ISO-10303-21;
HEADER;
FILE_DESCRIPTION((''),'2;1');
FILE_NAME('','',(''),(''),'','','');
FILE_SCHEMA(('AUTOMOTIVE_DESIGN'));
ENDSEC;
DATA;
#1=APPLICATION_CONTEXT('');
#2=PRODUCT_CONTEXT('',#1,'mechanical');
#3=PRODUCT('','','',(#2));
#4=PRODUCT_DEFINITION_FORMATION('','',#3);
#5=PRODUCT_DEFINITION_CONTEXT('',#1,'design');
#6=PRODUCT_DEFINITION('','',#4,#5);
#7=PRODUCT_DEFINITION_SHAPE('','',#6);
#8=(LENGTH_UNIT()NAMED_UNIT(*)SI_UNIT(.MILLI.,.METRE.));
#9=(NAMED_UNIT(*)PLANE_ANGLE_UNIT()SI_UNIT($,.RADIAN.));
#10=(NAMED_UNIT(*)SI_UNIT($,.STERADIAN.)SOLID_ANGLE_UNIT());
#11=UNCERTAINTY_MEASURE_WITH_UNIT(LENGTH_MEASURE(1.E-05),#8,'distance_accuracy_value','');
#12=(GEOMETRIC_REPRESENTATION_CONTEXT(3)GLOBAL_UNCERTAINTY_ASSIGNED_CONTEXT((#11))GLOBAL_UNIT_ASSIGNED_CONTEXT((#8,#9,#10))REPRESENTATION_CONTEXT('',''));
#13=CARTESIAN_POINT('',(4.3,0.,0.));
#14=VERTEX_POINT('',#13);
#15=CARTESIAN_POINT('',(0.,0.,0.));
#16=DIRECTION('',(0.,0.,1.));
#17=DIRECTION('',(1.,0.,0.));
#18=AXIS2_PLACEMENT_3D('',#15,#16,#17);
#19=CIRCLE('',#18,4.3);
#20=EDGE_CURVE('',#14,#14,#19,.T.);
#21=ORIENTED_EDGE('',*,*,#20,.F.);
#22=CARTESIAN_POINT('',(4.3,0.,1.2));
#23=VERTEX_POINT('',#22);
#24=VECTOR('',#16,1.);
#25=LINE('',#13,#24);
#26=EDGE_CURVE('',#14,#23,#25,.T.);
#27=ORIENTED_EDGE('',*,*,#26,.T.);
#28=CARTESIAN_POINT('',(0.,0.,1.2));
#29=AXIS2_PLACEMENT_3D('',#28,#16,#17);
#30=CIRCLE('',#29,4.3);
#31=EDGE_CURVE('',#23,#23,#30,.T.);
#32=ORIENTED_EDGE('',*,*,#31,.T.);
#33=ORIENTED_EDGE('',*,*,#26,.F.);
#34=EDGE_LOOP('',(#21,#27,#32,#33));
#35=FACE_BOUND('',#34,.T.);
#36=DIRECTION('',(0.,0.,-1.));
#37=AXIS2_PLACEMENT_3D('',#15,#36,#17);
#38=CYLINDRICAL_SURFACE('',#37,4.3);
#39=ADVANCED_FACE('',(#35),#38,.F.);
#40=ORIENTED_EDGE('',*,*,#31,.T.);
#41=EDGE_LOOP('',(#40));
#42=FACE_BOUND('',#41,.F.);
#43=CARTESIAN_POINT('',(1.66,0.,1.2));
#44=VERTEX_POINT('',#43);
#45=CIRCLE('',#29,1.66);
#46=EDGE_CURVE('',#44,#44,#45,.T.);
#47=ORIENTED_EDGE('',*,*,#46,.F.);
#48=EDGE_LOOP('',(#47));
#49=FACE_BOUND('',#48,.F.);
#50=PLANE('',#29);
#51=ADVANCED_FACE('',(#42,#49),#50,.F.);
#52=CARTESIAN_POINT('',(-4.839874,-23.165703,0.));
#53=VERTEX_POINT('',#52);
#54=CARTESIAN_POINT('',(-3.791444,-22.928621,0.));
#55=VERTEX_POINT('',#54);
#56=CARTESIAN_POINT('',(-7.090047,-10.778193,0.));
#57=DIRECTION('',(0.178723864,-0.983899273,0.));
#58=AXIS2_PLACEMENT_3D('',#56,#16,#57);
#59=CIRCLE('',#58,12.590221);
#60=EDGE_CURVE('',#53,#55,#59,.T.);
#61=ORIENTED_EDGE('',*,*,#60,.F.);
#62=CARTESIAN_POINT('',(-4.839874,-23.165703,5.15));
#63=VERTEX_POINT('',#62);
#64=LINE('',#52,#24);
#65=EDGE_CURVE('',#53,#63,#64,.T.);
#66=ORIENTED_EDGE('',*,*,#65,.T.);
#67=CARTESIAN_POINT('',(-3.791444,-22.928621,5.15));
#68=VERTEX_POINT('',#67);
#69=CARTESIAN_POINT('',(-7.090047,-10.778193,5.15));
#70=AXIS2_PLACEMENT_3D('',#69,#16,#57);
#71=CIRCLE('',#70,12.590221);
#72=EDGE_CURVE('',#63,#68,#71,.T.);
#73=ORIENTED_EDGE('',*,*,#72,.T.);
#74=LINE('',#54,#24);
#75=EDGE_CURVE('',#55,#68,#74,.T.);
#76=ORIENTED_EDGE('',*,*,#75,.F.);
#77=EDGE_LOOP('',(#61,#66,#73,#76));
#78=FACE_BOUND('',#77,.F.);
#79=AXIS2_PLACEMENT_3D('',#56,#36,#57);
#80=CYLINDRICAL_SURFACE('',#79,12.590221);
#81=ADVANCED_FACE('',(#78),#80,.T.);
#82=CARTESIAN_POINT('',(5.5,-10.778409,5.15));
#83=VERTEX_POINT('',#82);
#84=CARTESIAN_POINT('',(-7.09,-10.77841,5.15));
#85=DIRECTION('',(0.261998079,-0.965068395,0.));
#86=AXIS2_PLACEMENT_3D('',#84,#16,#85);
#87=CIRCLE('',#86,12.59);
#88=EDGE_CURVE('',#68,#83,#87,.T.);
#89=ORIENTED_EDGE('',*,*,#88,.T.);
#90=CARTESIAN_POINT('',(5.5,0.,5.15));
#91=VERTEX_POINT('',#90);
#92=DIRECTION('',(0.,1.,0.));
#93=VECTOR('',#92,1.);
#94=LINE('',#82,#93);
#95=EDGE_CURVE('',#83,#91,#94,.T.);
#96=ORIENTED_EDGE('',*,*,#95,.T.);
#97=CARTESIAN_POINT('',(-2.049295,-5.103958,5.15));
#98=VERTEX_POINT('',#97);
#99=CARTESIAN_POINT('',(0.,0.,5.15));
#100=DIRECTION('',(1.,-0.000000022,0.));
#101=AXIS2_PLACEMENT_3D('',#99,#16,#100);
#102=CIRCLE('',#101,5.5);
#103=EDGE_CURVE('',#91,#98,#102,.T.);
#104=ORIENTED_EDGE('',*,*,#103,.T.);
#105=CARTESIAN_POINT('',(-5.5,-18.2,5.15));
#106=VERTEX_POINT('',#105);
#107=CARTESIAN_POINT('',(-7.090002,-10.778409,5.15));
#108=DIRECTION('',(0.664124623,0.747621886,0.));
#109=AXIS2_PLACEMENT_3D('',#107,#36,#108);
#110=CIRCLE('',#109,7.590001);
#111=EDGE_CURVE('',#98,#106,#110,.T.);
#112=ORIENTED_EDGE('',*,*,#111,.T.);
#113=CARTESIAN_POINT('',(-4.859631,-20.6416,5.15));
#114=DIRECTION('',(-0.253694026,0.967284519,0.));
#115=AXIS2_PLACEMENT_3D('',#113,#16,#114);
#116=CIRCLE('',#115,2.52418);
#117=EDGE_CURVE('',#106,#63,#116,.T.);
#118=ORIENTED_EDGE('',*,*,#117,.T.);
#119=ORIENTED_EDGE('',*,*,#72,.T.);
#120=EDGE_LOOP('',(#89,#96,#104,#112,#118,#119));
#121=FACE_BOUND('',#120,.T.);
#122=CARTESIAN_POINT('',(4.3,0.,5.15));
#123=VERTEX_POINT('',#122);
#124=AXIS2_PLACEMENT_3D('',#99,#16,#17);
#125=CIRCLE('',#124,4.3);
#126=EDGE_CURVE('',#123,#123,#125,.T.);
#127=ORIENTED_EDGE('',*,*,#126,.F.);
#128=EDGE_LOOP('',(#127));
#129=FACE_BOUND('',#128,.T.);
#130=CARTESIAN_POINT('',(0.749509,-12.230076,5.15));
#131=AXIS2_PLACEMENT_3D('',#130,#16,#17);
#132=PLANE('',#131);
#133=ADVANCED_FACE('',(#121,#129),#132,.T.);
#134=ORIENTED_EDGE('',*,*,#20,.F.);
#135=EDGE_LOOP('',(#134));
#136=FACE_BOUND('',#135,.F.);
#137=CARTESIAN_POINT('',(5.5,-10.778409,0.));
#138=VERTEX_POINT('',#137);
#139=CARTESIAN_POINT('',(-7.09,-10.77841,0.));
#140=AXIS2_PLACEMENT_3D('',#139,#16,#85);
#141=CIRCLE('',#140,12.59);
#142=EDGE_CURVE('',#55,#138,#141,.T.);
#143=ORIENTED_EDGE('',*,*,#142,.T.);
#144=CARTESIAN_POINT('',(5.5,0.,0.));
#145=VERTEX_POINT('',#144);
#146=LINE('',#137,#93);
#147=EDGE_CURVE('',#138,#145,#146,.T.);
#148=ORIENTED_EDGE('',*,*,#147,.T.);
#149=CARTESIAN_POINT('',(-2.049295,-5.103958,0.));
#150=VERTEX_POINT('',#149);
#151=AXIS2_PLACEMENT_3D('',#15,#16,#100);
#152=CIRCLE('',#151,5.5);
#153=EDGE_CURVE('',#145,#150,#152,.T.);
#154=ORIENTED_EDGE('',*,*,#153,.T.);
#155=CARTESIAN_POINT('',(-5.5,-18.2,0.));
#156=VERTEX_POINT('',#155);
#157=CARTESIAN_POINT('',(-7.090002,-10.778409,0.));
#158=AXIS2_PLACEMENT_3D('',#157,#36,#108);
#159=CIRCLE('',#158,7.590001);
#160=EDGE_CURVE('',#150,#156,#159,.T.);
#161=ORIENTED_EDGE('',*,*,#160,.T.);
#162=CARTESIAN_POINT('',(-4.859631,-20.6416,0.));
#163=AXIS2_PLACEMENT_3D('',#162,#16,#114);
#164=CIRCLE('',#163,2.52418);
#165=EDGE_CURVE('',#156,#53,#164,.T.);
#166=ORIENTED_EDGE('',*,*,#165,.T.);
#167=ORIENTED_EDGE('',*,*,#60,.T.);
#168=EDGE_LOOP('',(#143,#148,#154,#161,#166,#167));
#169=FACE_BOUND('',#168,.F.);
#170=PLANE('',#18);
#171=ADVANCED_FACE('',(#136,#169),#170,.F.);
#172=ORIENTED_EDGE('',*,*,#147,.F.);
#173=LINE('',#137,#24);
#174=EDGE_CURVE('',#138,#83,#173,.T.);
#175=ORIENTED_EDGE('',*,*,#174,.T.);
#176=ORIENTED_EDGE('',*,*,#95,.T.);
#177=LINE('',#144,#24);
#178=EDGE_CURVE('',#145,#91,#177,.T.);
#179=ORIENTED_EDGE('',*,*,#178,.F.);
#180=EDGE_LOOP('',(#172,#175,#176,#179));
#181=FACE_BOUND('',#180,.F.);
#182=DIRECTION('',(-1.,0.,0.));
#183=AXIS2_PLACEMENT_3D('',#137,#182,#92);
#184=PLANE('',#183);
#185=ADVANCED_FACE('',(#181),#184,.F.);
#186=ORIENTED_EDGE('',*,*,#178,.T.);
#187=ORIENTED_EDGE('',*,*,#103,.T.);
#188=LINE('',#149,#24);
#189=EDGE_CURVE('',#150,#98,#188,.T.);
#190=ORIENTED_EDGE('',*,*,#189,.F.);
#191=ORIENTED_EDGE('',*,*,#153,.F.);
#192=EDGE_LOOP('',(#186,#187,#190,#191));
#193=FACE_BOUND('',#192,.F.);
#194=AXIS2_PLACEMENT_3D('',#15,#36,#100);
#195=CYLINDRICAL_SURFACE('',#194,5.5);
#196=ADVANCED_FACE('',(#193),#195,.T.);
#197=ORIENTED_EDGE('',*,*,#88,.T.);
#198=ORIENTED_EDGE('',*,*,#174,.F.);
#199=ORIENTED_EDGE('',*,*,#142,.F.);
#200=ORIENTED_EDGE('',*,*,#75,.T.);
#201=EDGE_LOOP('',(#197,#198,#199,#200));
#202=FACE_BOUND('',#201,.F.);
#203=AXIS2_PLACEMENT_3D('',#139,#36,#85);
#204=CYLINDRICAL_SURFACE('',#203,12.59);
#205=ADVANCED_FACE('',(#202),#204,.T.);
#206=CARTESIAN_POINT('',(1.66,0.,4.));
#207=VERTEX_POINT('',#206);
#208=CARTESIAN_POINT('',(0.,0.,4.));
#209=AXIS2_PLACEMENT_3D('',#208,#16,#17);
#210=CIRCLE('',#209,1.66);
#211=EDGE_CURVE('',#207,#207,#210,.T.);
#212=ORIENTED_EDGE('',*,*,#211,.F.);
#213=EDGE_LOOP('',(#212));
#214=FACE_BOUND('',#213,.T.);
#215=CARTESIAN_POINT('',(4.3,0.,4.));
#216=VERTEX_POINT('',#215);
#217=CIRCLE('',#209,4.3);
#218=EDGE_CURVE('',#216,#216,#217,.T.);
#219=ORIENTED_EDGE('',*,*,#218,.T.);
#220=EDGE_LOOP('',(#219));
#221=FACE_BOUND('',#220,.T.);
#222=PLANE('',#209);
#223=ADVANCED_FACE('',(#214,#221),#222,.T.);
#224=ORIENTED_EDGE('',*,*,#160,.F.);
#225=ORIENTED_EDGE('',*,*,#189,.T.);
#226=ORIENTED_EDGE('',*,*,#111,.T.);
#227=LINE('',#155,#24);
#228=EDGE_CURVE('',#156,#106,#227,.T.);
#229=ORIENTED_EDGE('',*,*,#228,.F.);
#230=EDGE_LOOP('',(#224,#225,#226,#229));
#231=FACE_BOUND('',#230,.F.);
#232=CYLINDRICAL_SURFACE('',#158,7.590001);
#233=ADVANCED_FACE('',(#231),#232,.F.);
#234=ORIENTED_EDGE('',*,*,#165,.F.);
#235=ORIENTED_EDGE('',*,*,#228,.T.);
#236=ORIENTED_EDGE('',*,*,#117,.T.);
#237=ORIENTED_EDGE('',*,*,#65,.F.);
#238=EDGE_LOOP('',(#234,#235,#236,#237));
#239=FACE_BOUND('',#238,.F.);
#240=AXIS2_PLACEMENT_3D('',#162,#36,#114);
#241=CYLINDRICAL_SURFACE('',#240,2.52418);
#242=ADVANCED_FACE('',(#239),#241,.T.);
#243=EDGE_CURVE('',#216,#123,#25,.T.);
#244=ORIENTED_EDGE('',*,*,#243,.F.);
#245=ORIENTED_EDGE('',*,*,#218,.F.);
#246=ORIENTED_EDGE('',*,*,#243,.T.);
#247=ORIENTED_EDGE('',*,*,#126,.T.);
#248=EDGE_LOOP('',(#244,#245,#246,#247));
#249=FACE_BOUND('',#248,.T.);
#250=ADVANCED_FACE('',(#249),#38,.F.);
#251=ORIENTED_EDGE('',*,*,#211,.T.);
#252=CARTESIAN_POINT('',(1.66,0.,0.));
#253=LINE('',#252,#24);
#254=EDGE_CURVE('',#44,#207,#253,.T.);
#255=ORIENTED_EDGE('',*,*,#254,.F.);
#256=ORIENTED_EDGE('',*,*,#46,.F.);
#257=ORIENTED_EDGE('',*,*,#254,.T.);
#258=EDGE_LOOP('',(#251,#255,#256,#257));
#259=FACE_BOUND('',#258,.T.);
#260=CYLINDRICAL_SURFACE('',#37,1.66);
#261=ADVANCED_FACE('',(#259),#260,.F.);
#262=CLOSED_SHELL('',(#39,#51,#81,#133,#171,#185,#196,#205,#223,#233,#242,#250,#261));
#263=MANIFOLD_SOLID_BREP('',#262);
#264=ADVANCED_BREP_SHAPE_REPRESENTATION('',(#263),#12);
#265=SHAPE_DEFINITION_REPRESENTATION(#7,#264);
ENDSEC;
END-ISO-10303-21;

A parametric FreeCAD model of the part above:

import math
import FreeCAD as App
import Part
import Sketcher
from FreeCAD import Vector
Q = App.Units.Quantity

doc = App.newDocument("Part")
params = doc.addObject("Spreadsheet::Sheet", "Params")
for row, (alias, value) in enumerate([
    ("sketch1_diameter", "8.6 mm"),
    ("sketch1_radius", "5.5 mm"),
    ("sketch1_radius2", "7.590001 mm"),
    ("sketch1_radius3", "12.59 mm"),
    ("pad1_length", "5.15 mm"),
    ("sketch2_diameter", "8.6 mm"),
    ("sketch2_diameter2", "3.32 mm"),
    ("pad2_length", "4 mm"),
    ("sketch3_diameter", "8.6 mm"),
    ("sketch3_diameter2", "3.32 mm"),
    ("pocket1_length", "1.2 mm"),
], start=1):
    params.set(f"A{row}", alias)
    params.set(f"B{row}", "=" + value)
    params.setAlias(f"B{row}", alias)

body = doc.addObject("PartDesign::Body", "Body")

# Sketch on XY plane
sketch1 = doc.addObject("Sketcher::SketchObject", "Sketch")
body.addObject(sketch1)
sketch1.AttachmentSupport = (doc.XY_Plane, [""])
sketch1.MapMode = "FlatFace"
sketch1.addGeometry(Part.LineSegment(Vector(5.5, -10.8, 0), Vector(5.5, 0, 0)), False)
sketch1.addGeometry(Part.ArcOfCircle(Part.Circle(Vector(0, 0, 0), Vector(0, 0, 1), 5.5), math.radians(0), math.radians(248)), False)
sketch1.addGeometry(Part.ArcOfCircle(Part.Circle(Vector(-7.1, -10.8, 0), Vector(0, 0, 1), 7.6), math.radians(-78), math.radians(48)), False)
sketch1.addGeometry(Part.ArcOfCircle(Part.Circle(Vector(-4.9, -20.6, 0), Vector(0, 0, 1), 2.5), math.radians(105), math.radians(270)), False)
sketch1.addGeometry(Part.ArcOfCircle(Part.Circle(Vector(-7.1, -10.8, 0), Vector(0, 0, 1), 12.6), math.radians(-79.7), math.radians(-74.81)), False)
sketch1.addGeometry(Part.ArcOfCircle(Part.Circle(Vector(-7.1, -10.8, 0), Vector(0, 0, 1), 12.6), math.radians(-75), math.radians(0)), False)
sketch1.addGeometry(Part.Circle(Vector(0, 0, 0), Vector(0, 0, 1), 4.3), False)
sketch1.addConstraint(Sketcher.Constraint("Tangent", 0, 2, 1, 1))
sketch1.addConstraint(Sketcher.Constraint("Coincident", 1, 2, 2, 2))
sketch1.addConstraint(Sketcher.Constraint("Coincident", 2, 1, 3, 1))
sketch1.addConstraint(Sketcher.Constraint("Coincident", 3, 2, 4, 1))
sketch1.addConstraint(Sketcher.Constraint("Tangent", 4, 2, 5, 1))
sketch1.addConstraint(Sketcher.Constraint("Tangent", 5, 2, 0, 1))
sketch1.addConstraint(Sketcher.Constraint("Vertical", 0))
sketch1.addConstraint(Sketcher.Constraint("Coincident", 1, 3, -1, 1))
sketch1.addConstraint(Sketcher.Constraint("Coincident", 6, 3, -1, 1))
sketch1.addConstraint(Sketcher.Constraint("Coincident", 5, 3, 2, 3))
sketch1.addConstraint(Sketcher.Constraint("Diameter", 6, Q("8.6 mm")))
sketch1.addConstraint(Sketcher.Constraint("Radius", 1, Q("5.5 mm")))
sketch1.addConstraint(Sketcher.Constraint("Radius", 2, Q("7.590001 mm")))
sketch1.addConstraint(Sketcher.Constraint("Radius", 5, Q("12.59 mm")))
sketch1.addConstraint(Sketcher.Constraint("DistanceX", 2, 1, -1, 1, Q("5.5 mm")))
sketch1.addConstraint(Sketcher.Constraint("DistanceY", 2, 1, -1, 1, Q("18.2 mm")))
sketch1.addConstraint(Sketcher.Constraint("Radius", 3, Q("2.52418 mm")))
sketch1.addConstraint(Sketcher.Constraint("Radius", 4, Q("12.590221 mm")))
sketch1.addConstraint(Sketcher.Constraint("DistanceY", 3, 3, -1, 1, Q("20.6416 mm")))
sketch1.addConstraint(Sketcher.Constraint("DistanceY", 4, 2, -1, 1, Q("22.928621 mm")))
sketch1.setExpression("Constraints[10]", "Params.sketch1_diameter")
sketch1.setExpression("Constraints[11]", "Params.sketch1_radius")
sketch1.setExpression("Constraints[12]", "Params.sketch1_radius2")
sketch1.setExpression("Constraints[13]", "Params.sketch1_radius3")
pad1 = doc.addObject("PartDesign::Pad", "Pad")
body.addObject(pad1)
pad1.Profile = sketch1
pad1.setExpression("Length", "Params.pad1_length")

# Sketch on XY plane
sketch2 = doc.addObject("Sketcher::SketchObject", "Sketch001")
body.addObject(sketch2)
sketch2.AttachmentSupport = (doc.XY_Plane, [""])
sketch2.MapMode = "FlatFace"
sketch2.addGeometry(Part.Circle(Vector(0, 0, 0), Vector(0, 0, 1), 4.3), False)
sketch2.addGeometry(Part.Circle(Vector(0, 0, 0), Vector(0, 0, 1), 1.7), False)
sketch2.addConstraint(Sketcher.Constraint("Coincident", 0, 3, -1, 1))
sketch2.addConstraint(Sketcher.Constraint("Coincident", 1, 3, -1, 1))
sketch2.addConstraint(Sketcher.Constraint("Diameter", 0, Q("8.6 mm")))
sketch2.addConstraint(Sketcher.Constraint("Diameter", 1, Q("3.32 mm")))
sketch2.setExpression("Constraints[2]", "Params.sketch2_diameter")
sketch2.setExpression("Constraints[3]", "Params.sketch2_diameter2")
pad2 = doc.addObject("PartDesign::Pad", "Pad001")
body.addObject(pad2)
pad2.Profile = sketch2
pad2.setExpression("Length", "Params.pad2_length")

# Sketch on XY plane
sketch3 = doc.addObject("Sketcher::SketchObject", "Sketch002")
body.addObject(sketch3)
sketch3.AttachmentSupport = (doc.XY_Plane, [""])
sketch3.MapMode = "FlatFace"
sketch3.addGeometry(Part.Circle(Vector(0, 0, 0), Vector(0, 0, 1), 4.3), False)
sketch3.addGeometry(Part.Circle(Vector(0, 0, 0), Vector(0, 0, 1), 1.7), False)
sketch3.addConstraint(Sketcher.Constraint("Coincident", 0, 3, -1, 1))
sketch3.addConstraint(Sketcher.Constraint("Coincident", 1, 3, -1, 1))
sketch3.addConstraint(Sketcher.Constraint("Diameter", 0, Q("8.6 mm")))
sketch3.addConstraint(Sketcher.Constraint("Diameter", 1, Q("3.32 mm")))
sketch3.setExpression("Constraints[2]", "Params.sketch3_diameter")
sketch3.setExpression("Constraints[3]", "Params.sketch3_diameter2")
pocket1 = doc.addObject("PartDesign::Pocket", "Pocket")
body.addObject(pocket1)
pocket1.Profile = sketch3
pocket1.setExpression("Length", "Params.pocket1_length")
pocket1.Reversed = True

doc.recompute()
